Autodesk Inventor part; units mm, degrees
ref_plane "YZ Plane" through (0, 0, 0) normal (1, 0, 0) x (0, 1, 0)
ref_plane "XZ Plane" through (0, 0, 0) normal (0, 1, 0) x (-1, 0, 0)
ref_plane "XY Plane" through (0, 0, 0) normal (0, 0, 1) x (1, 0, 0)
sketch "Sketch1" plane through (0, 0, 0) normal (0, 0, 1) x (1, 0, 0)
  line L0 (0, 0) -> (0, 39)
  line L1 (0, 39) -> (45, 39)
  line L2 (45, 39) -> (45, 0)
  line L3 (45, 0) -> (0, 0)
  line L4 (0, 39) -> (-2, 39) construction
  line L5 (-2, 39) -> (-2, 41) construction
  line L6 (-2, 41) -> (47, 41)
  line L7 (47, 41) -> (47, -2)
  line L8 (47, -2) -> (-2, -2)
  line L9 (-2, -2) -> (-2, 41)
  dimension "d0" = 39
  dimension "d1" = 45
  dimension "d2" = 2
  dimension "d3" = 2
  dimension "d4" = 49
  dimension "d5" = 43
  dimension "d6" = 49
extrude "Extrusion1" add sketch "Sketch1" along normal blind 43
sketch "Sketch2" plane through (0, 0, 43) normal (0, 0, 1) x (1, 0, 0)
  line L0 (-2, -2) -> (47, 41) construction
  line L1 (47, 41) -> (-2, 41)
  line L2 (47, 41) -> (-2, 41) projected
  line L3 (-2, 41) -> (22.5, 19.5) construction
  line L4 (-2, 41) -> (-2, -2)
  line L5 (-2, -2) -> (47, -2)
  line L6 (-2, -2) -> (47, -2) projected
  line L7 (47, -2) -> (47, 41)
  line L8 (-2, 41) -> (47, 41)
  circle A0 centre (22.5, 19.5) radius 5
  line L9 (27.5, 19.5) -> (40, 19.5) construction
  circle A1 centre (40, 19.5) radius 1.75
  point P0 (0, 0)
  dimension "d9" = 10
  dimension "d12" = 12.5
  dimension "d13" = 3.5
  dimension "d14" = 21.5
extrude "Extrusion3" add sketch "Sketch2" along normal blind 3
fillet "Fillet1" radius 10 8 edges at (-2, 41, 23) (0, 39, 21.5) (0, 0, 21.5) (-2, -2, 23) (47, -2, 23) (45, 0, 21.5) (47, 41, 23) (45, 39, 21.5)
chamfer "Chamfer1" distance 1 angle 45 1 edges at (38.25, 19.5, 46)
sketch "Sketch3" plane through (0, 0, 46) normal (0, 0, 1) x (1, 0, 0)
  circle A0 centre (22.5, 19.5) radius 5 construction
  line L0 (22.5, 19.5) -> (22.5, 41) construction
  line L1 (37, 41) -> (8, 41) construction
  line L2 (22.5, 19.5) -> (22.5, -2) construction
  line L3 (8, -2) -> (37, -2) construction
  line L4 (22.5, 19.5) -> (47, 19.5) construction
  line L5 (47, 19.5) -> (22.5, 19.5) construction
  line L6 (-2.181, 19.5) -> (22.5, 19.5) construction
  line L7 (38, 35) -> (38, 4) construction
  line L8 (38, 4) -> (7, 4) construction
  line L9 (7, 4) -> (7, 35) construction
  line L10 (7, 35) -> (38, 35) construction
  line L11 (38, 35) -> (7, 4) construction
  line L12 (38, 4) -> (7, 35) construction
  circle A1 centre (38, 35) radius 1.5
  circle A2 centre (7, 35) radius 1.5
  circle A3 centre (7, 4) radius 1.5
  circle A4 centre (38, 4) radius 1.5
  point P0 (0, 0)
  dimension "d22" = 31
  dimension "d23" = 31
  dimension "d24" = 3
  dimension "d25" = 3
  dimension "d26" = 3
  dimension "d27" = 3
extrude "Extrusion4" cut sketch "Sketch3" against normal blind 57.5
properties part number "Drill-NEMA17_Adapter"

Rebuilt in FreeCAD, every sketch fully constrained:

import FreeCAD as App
import Part
import Sketcher
Q = App.Units.Quantity


def edges_at(feature, points):
    """Names of the edges that pass closest to the given points."""
    edges = feature.Shape.Edges
    near = lambda p: min(range(len(edges)), key=lambda i: edges[i].distToShape(Part.Vertex(*p))[0])
    return sorted({f"Edge{near(p) + 1}" for p in points})

doc = App.newDocument("Part")
body = doc.addObject("PartDesign::Body", "Body")

# Sketch on XY plane
sketch1 = body.newObject("Sketcher::SketchObject", "Sketch")
sketch1.AttachmentSupport = (doc.getObject("XY_Plane"), [""])
sketch1.MapMode = "FlatFace"
sketch1.addGeometry([
    Part.LineSegment(App.Vector(47, 41, 0), App.Vector(-2, 41, 0)),  # 0
    Part.LineSegment(App.Vector(-2, 41, 0), App.Vector(-2, -2, 0)),  # 1
    Part.LineSegment(App.Vector(-2, -2, 0), App.Vector(47, -2, 0)),  # 2
    Part.LineSegment(App.Vector(47, -2, 0), App.Vector(47, 41, 0)),  # 3
    Part.LineSegment(App.Vector(45, 0, 0), App.Vector(0, 0, 0)),  # 4
    Part.LineSegment(App.Vector(0, 0, 0), App.Vector(0, 39, 0)),  # 5
    Part.LineSegment(App.Vector(0, 39, 0), App.Vector(45, 39, 0)),  # 6
    Part.LineSegment(App.Vector(45, 39, 0), App.Vector(45, 0, 0)),  # 7
], False)
sketch1.addConstraint([
    Sketcher.Constraint("Coincident", 0, 2, 1, 1),
    Sketcher.Constraint("Coincident", 1, 2, 2, 1),
    Sketcher.Constraint("Coincident", 2, 2, 3, 1),
    Sketcher.Constraint("Coincident", 3, 2, 0, 1),
    Sketcher.Constraint("Coincident", 4, 2, 5, 1),
    Sketcher.Constraint("Coincident", 5, 2, 6, 1),
    Sketcher.Constraint("Coincident", 6, 2, 7, 1),
    Sketcher.Constraint("Coincident", 7, 2, 4, 1),
    Sketcher.Constraint("Horizontal", 0),
    Sketcher.Constraint("Vertical", 1),
    Sketcher.Constraint("Horizontal", 2),
    Sketcher.Constraint("Vertical", 3),
    Sketcher.Constraint("Horizontal", 4),
    Sketcher.Constraint("Vertical", 5),
    Sketcher.Constraint("Horizontal", 6),
    Sketcher.Constraint("Vertical", 7),
    Sketcher.Constraint("Coincident", 4, 2, -1, 1),
    Sketcher.Constraint("DistanceX", 0, 2, 0, 1, Q("49 mm")),
    Sketcher.Constraint("DistanceX", 4, 2, 4, 1, Q("45 mm")),
    Sketcher.Constraint("DistanceY", 1, 2, 1, 1, Q("43 mm")),
    Sketcher.Constraint("DistanceY", 5, 1, 5, 2, Q("39 mm")),
    Sketcher.Constraint("DistanceX", 0, 2, -1, 1, Q("2 mm")),
    Sketcher.Constraint("DistanceY", 1, 2, -1, 1, Q("2 mm")),
])
pad1 = body.newObject("PartDesign::Pad", "Pad")
pad1.Profile = sketch1
pad1.Length = 43

# Sketch on XY plane
sketch2 = body.newObject("Sketcher::SketchObject", "Sketch001")
sketch2.AttachmentSupport = (doc.getObject("XY_Plane"), [""])
sketch2.MapMode = "FlatFace"
sketch2.AttachmentOffset = App.Placement(App.Vector(0, 0, 43), App.Rotation())
sketch2.addGeometry([
    Part.LineSegment(App.Vector(47, -2, 0), App.Vector(47, 41, 0)),  # 0
    Part.LineSegment(App.Vector(47, 41, 0), App.Vector(-2, 41, 0)),  # 1
    Part.LineSegment(App.Vector(-2, 41, 0), App.Vector(-2, -2, 0)),  # 2
    Part.LineSegment(App.Vector(-2, -2, 0), App.Vector(47, -2, 0)),  # 3
    Part.Circle(App.Vector(22.5, 19.5, 0), App.Vector(0, 0, 1), 5),  # 4
    Part.Circle(App.Vector(40, 19.5, 0), App.Vector(0, 0, 1), 1.75),  # 5
], False)
sketch2.addConstraint([
    Sketcher.Constraint("Coincident", 0, 2, 1, 1),
    Sketcher.Constraint("Coincident", 1, 2, 2, 1),
    Sketcher.Constraint("Coincident", 2, 2, 3, 1),
    Sketcher.Constraint("Coincident", 3, 2, 0, 1),
    Sketcher.Constraint("Vertical", 0),
    Sketcher.Constraint("Horizontal", 1),
    Sketcher.Constraint("Vertical", 2),
    Sketcher.Constraint("Horizontal", 3),
    Sketcher.Constraint("Horizontal", 4, 3, 5, 3),
    Sketcher.Constraint("Diameter", 4, Q("10 mm")),
    Sketcher.Constraint("Diameter", 5, Q("3.5 mm")),
    Sketcher.Constraint("DistanceY", 5, 3, 0, 2, Q("21.5 mm")),
    Sketcher.Constraint("DistanceY", 2, 2, 4, 3, Q("21.5 mm")),
    Sketcher.Constraint("DistanceX", 1, 2, 1, 1, Q("49 mm")),
    Sketcher.Constraint("DistanceX", -1, 1, 5, 3, Q("40 mm")),
    Sketcher.Constraint("DistanceX", -1, 1, 0, 2, Q("47 mm")),
    Sketcher.Constraint("DistanceY", -1, 1, 0, 2, Q("41 mm")),
    Sketcher.Constraint("DistanceX", -1, 1, 4, 3, Q("22.5 mm")),
])
pad2 = body.newObject("PartDesign::Pad", "Pad001")
pad2.Profile = sketch2
pad2.Length = 3
doc.recompute()

fillet = body.newObject("PartDesign::Fillet", "Fillet")
fillet.Base = (pad2, edges_at(pad2, [
    (-2, 41, 23),
    (0, 39, 21.5),
    (0, 0, 21.5),
    (-2, -2, 23),
    (47, -2, 23),
    (45, 0, 21.5),
    (47, 41, 23),
    (45, 39, 21.5),
]))
fillet.Radius = 10
doc.recompute()

chamfer = body.newObject("PartDesign::Chamfer", "Chamfer")
chamfer.Base = (fillet, edges_at(fillet, [(38.25, 19.5, 46)]))
chamfer.Size = 1

# Sketch on XY plane
sketch3 = body.newObject("Sketcher::SketchObject", "Sketch002")
sketch3.AttachmentSupport = (doc.getObject("XY_Plane"), [""])
sketch3.MapMode = "FlatFace"
sketch3.AttachmentOffset = App.Placement(App.Vector(0, 0, 46), App.Rotation())
sketch3.addGeometry([
    Part.Circle(App.Vector(38, 35, 0), App.Vector(0, 0, 1), 1.5),
    Part.Circle(App.Vector(7, 35, 0), App.Vector(0, 0, 1), 1.5),
    Part.Circle(App.Vector(7, 4, 0), App.Vector(0, 0, 1), 1.5),
    Part.Circle(App.Vector(38, 4, 0), App.Vector(0, 0, 1), 1.5),
], False)
sketch3.addConstraint([
    Sketcher.Constraint("Equal", 0, 1),
    Sketcher.Constraint("Equal", 1, 2),
    Sketcher.Constraint("Equal", 2, 3),
    Sketcher.Constraint("Horizontal", 0, 3, 1, 3),
    Sketcher.Constraint("Horizontal", 2, 3, 3, 3),
    Sketcher.Constraint("Vertical", 1, 3, 2, 3),
    Sketcher.Constraint("Vertical", 0, 3, 3, 3),
    Sketcher.Constraint("Diameter", 0, Q("3 mm")),
    Sketcher.Constraint("DistanceX", 1, 3, 0, 3, Q("31 mm")),
    Sketcher.Constraint("DistanceY", 2, 3, 1, 3, Q("31 mm")),
    Sketcher.Constraint("DistanceX", -1, 1, 0, 3, Q("38 mm")),
    Sketcher.Constraint("DistanceY", -1, 1, 0, 3, Q("35 mm")),
])
pocket1 = body.newObject("PartDesign::Pocket", "Pocket")
pocket1.Profile = sketch3
pocket1.Length = 57.5

doc.recompute()
